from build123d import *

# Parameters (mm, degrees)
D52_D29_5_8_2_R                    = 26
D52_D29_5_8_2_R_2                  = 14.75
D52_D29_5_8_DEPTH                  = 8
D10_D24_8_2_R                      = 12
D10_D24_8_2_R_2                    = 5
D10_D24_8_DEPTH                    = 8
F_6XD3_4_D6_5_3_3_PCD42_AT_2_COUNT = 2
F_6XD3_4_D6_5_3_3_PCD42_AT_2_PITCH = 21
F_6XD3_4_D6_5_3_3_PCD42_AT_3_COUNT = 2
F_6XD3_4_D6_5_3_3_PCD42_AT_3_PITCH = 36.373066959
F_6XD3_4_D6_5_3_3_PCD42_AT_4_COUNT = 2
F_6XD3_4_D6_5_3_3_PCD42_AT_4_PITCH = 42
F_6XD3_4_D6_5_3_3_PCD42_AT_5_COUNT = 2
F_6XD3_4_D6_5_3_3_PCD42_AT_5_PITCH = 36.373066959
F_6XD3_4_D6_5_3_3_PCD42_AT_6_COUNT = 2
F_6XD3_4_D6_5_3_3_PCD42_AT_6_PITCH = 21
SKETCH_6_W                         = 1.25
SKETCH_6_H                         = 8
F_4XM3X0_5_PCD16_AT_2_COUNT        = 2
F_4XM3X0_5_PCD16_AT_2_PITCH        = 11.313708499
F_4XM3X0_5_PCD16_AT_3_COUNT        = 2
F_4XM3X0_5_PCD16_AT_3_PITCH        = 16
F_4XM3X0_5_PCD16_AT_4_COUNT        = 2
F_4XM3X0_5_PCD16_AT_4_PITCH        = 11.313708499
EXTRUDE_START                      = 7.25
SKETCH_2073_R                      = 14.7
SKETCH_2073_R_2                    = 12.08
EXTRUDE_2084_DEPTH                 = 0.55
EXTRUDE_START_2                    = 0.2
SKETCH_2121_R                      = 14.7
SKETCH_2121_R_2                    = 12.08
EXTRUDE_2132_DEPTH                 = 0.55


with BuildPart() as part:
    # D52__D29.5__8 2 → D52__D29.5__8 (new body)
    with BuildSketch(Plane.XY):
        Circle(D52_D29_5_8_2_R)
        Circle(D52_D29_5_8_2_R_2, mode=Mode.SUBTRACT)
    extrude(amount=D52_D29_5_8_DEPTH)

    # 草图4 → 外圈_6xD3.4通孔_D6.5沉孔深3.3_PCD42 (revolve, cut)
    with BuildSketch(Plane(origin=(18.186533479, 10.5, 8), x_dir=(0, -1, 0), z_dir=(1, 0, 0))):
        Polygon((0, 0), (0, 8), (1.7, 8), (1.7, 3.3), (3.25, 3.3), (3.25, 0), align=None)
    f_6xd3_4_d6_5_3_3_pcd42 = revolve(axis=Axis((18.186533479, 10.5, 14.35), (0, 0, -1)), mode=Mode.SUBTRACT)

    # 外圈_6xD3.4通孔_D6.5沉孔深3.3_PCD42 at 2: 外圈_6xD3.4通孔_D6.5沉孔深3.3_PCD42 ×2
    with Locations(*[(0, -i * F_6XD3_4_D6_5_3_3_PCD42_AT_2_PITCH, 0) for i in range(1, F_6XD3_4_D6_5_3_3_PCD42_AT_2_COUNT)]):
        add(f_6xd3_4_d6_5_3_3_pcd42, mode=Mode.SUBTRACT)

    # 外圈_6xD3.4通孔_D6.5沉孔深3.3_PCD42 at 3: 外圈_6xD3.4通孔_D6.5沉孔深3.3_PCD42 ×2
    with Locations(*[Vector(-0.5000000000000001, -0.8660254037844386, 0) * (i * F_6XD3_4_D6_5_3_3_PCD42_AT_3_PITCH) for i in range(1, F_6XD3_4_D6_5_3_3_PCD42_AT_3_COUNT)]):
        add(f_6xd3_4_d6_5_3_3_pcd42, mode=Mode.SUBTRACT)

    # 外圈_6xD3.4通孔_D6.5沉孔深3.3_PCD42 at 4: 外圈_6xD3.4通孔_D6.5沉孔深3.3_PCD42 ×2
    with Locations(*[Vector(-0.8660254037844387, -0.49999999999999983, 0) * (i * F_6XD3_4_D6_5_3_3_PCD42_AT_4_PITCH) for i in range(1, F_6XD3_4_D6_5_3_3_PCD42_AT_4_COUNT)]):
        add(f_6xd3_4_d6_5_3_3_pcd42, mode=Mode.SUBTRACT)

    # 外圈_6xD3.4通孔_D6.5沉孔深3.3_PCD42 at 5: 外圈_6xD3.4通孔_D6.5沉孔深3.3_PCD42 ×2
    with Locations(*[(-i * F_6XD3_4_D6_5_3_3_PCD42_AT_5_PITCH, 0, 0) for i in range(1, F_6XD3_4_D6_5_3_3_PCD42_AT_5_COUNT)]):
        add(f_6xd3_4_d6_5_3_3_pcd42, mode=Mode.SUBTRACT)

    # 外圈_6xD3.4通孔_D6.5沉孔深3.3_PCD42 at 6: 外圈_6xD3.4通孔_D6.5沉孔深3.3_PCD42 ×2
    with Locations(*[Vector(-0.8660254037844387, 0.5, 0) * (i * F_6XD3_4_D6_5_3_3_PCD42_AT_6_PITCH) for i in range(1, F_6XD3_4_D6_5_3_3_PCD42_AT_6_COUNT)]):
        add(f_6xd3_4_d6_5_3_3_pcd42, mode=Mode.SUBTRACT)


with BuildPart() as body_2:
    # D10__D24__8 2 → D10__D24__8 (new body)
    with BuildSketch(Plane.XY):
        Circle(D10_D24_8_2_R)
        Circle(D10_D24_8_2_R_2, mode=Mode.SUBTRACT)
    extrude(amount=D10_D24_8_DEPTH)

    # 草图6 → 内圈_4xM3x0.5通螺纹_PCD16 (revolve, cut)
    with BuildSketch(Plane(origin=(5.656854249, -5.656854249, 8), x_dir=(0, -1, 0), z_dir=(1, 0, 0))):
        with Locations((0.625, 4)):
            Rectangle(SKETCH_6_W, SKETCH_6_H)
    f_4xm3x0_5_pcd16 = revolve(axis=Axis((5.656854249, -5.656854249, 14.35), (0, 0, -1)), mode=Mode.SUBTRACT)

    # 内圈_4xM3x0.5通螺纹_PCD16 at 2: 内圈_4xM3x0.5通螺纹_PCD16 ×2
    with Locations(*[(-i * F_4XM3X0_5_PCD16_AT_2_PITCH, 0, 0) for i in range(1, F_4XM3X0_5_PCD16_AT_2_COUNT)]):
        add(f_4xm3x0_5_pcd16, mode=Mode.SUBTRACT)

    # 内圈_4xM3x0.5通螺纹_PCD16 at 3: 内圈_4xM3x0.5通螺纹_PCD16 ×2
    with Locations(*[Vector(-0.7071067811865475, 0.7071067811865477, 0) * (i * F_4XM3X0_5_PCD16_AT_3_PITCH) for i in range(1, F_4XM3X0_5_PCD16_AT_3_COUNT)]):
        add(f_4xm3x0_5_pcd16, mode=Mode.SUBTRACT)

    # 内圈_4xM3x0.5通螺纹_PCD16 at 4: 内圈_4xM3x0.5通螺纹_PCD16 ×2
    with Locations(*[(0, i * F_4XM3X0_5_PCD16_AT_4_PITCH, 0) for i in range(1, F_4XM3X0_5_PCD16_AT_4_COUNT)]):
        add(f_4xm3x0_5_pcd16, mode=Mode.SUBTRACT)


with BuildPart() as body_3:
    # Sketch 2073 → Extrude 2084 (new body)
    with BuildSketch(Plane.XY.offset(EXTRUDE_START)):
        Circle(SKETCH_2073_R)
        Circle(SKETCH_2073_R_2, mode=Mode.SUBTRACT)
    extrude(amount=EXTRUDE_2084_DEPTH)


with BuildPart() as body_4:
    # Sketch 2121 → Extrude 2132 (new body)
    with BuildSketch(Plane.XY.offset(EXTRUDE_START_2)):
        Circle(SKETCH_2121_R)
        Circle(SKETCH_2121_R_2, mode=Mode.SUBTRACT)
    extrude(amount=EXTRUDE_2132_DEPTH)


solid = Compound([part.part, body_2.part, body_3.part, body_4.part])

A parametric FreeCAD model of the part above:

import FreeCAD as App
import Part
import Sketcher
from FreeCAD import Vector

doc = App.newDocument("Part")
body = doc.addObject("PartDesign::Body", "Body")

# Sketch on XY plane
sketch1 = body.newObject("Sketcher::SketchObject", "Sketch")
sketch1.AttachmentSupport = (doc.getObject("XY_Plane"), [""])
sketch1.MapMode = "FlatFace"
sketch1.addGeometry([
    Part.Circle(Vector(0, 0, 0), Vector(0, 0, 1), 26),
    Part.Circle(Vector(0, 0, 0), Vector(0, 0, 1), 15),
], False)
sketch1.addConstraint([
    Sketcher.Constraint("Coincident", 0, 3, -1, 1),
    Sketcher.Constraint("Coincident", 1, 3, -1, 1),
    Sketcher.Constraint("Diameter", 0, 52.0),
    Sketcher.Constraint("Diameter", 1, 29.5),
])
pad1 = body.newObject("PartDesign::Pad", "Pad")
pad1.Profile = sketch1
pad1.Length = 8

# Sketch on YZ plane
sketch2 = body.newObject("Sketcher::SketchObject", "Sketch001")
sketch2.AttachmentSupport = (doc.getObject("YZ_Plane"), [""])
sketch2.MapMode = "FlatFace"
sketch2.AttachmentOffset = App.Placement(Vector(0, 0, 18.186533), App.Rotation())
sketch2.addGeometry([
    Part.LineSegment(Vector(10.5, 0, 0), Vector(10.5, 8, 0)),  # 0
    Part.LineSegment(Vector(10.5, 8, 0), Vector(7.2, 8, 0)),  # 1
    Part.LineSegment(Vector(7.2, 8, 0), Vector(7.2, 4.7, 0)),  # 2
    Part.LineSegment(Vector(7.2, 4.7, 0), Vector(8.8, 4.7, 0)),  # 3
    Part.LineSegment(Vector(8.8, 4.7, 0), Vector(8.8, 0, 0)),  # 4
    Part.LineSegment(Vector(8.8, 0, 0), Vector(10.5, 0, 0)),  # 5
], False)
sketch2.addGeometry(Part.LineSegment(Vector(10.5, 8, 0), Vector(10.5, 0, 0)), True)  # axis
sketch2.addConstraint([
    Sketcher.Constraint("Coincident", 0, 2, 1, 1),
    Sketcher.Constraint("Coincident", 1, 2, 2, 1),
    Sketcher.Constraint("Coincident", 2, 2, 3, 1),
    Sketcher.Constraint("Coincident", 3, 2, 4, 1),
    Sketcher.Constraint("Coincident", 4, 2, 5, 1),
    Sketcher.Constraint("Coincident", 5, 2, 0, 1),
    Sketcher.Constraint("Vertical", 0),
    Sketcher.Constraint("Horizontal", 1),
    Sketcher.Constraint("Vertical", 2),
    Sketcher.Constraint("Horizontal", 3),
    Sketcher.Constraint("Vertical", 4),
    Sketcher.Constraint("Horizontal", 5),
    Sketcher.Constraint("Vertical", 6),
    Sketcher.Constraint("Coincident", 6, 1, 0, 2),
    Sketcher.Constraint("PointOnObject", 4, 2, -1),
    Sketcher.Constraint("PointOnObject", 6, 2, -1),
    Sketcher.Constraint("DistanceY", 0, 1, 0, 2, 8.0),
    Sketcher.Constraint("DistanceX", 5, 1, 5, 2, 1.7),
    Sketcher.Constraint("DistanceY", 2, 2, 2, 1, 3.3),
    Sketcher.Constraint("DistanceX", 1, 2, 1, 1, 3.25),
    Sketcher.Constraint("DistanceX", -1, 1, 0, 2, 10.5),
])
groove = body.newObject("PartDesign::Groove", "Groove")
groove.Profile = sketch2
groove.ReferenceAxis = (sketch2, ["Axis0"])
groove.Angle = 360
doc.recompute()

linearpattern = body.newObject("PartDesign::LinearPattern", "LinearPattern")
linearpattern.Originals = [groove]
linearpattern.Direction = (doc.getObject("Y_Axis"), [""])
linearpattern.Mode = "offset"
linearpattern.Offset = 21
linearpattern.Occurrences = 2
linearpattern.Reversed = True
body.Tip = linearpattern
doc.recompute()

datumline = body.newObject("PartDesign::Line", "DatumLine")
datumline.Placement = App.Placement(Vector(0, 0, 0), App.Rotation(Vector(0, 0, 1), Vector(-0.5, -0.866025404, 0)))
linearpattern2 = body.newObject("PartDesign::LinearPattern", "LinearPattern001")
linearpattern2.Originals = [groove]
linearpattern2.Direction = (datumline, [""])
linearpattern2.Mode = "offset"
linearpattern2.Offset = 36.373067
linearpattern2.Occurrences = 2
body.Tip = linearpattern2
doc.recompute()

datumline2 = body.newObject("PartDesign::Line", "DatumLine001")
datumline2.Placement = App.Placement(Vector(0, 0, 0), App.Rotation(Vector(0, 0, 1), Vector(-0.866025404, -0.5, 0)))
linearpattern3 = body.newObject("PartDesign::LinearPattern", "LinearPattern002")
linearpattern3.Originals = [groove]
linearpattern3.Direction = (datumline2, [""])
linearpattern3.Mode = "offset"
linearpattern3.Offset = 42
linearpattern3.Occurrences = 2
body.Tip = linearpattern3
doc.recompute()

linearpattern4 = body.newObject("PartDesign::LinearPattern", "LinearPattern003")
linearpattern4.Originals = [groove]
linearpattern4.Direction = (doc.getObject("X_Axis"), [""])
linearpattern4.Mode = "offset"
linearpattern4.Offset = 36.373067
linearpattern4.Occurrences = 2
linearpattern4.Reversed = True
body.Tip = linearpattern4
doc.recompute()

datumline3 = body.newObject("PartDesign::Line", "DatumLine002")
datumline3.Placement = App.Placement(Vector(0, 0, 0), App.Rotation(Vector(0, 0, 1), Vector(-0.866025404, 0.5, 0)))
linearpattern5 = body.newObject("PartDesign::LinearPattern", "LinearPattern004")
linearpattern5.Originals = [groove]
linearpattern5.Direction = (datumline3, [""])
linearpattern5.Mode = "offset"
linearpattern5.Offset = 21
linearpattern5.Occurrences = 2
body.Tip = linearpattern5
body2 = doc.addObject("PartDesign::Body", "Body001")

# Sketch on XY plane
sketch3 = body2.newObject("Sketcher::SketchObject", "Sketch002")
sketch3.AttachmentSupport = (doc.getObject("XY_Plane001"), [""])
sketch3.MapMode = "FlatFace"
sketch3.addGeometry([
    Part.Circle(Vector(0, 0, 0), Vector(0, 0, 1), 12),
    Part.Circle(Vector(0, 0, 0), Vector(0, 0, 1), 5),
], False)
sketch3.addConstraint([
    Sketcher.Constraint("Coincident", 0, 3, -1, 1),
    Sketcher.Constraint("Coincident", 1, 3, -1, 1),
    Sketcher.Constraint("Diameter", 0, 24.0),
    Sketcher.Constraint("Diameter", 1, 10.0),
])
pad2 = body2.newObject("PartDesign::Pad", "Pad001")
pad2.Profile = sketch3
pad2.Length = 8

# Sketch on YZ plane
sketch4 = body2.newObject("Sketcher::SketchObject", "Sketch003")
sketch4.AttachmentSupport = (doc.getObject("YZ_Plane001"), [""])
sketch4.MapMode = "FlatFace"
sketch4.AttachmentOffset = App.Placement(Vector(0, 0, 5.656854), App.Rotation())
sketch4.addGeometry([
    Part.LineSegment(Vector(-5.7, 0, 0), Vector(-5.7, 8, 0)),
    Part.LineSegment(Vector(-5.7, 8, 0), Vector(-6.9, 8, 0)),
    Part.LineSegment(Vector(-6.9, 8, 0), Vector(-6.9, 0, 0)),
    Part.LineSegment(Vector(-6.9, 0, 0), Vector(-5.7, 0, 0)),
], False)
sketch4.addGeometry(Part.LineSegment(Vector(-5.7, 8, 0), Vector(-5.7, 0, 0)), True)  # axis
sketch4.addConstraint([
    Sketcher.Constraint("Coincident", 0, 2, 1, 1),
    Sketcher.Constraint("Coincident", 1, 2, 2, 1),
    Sketcher.Constraint("Coincident", 2, 2, 3, 1),
    Sketcher.Constraint("Coincident", 3, 2, 0, 1),
    Sketcher.Constraint("Vertical", 0),
    Sketcher.Constraint("Horizontal", 1),
    Sketcher.Constraint("Vertical", 2),
    Sketcher.Constraint("Horizontal", 3),
    Sketcher.Constraint("Vertical", 4),
    Sketcher.Constraint("Coincident", 4, 1, 0, 2),
    Sketcher.Constraint("PointOnObject", 2, 2, -1),
    Sketcher.Constraint("PointOnObject", 4, 2, -1),
    Sketcher.Constraint("DistanceY", 0, 1, 0, 2, 8.0),
    Sketcher.Constraint("DistanceX", 1, 2, 1, 1, 1.25),
    Sketcher.Constraint("DistanceX", 0, 2, -1, 1, 5.656854),
])
groove2 = body2.newObject("PartDesign::Groove", "Groove001")
groove2.Profile = sketch4
groove2.ReferenceAxis = (sketch4, ["Axis0"])
groove2.Angle = 360
doc.recompute()

linearpattern6 = body2.newObject("PartDesign::LinearPattern", "LinearPattern005")
linearpattern6.Originals = [groove2]
linearpattern6.Direction = (doc.getObject("X_Axis001"), [""])
linearpattern6.Mode = "offset"
linearpattern6.Offset = 11.313708
linearpattern6.Occurrences = 2
linearpattern6.Reversed = True
body2.Tip = linearpattern6
doc.recompute()

datumline4 = body2.newObject("PartDesign::Line", "DatumLine003")
datumline4.Placement = App.Placement(Vector(0, 0, 0), App.Rotation(Vector(0, 0, 1), Vector(-0.707106781, 0.707106781, 0)))
linearpattern7 = body2.newObject("PartDesign::LinearPattern", "LinearPattern006")
linearpattern7.Originals = [groove2]
linearpattern7.Direction = (datumline4, [""])
linearpattern7.Mode = "offset"
linearpattern7.Offset = 16
linearpattern7.Occurrences = 2
body2.Tip = linearpattern7
doc.recompute()

linearpattern8 = body2.newObject("PartDesign::LinearPattern", "LinearPattern007")
linearpattern8.Originals = [groove2]
linearpattern8.Direction = (doc.getObject("Y_Axis001"), [""])
linearpattern8.Mode = "offset"
linearpattern8.Offset = 11.313708
linearpattern8.Occurrences = 2
body2.Tip = linearpattern8
body3 = doc.addObject("PartDesign::Body", "Body002")

# Sketch on XY plane
sketch5 = body3.newObject("Sketcher::SketchObject", "Sketch004")
sketch5.AttachmentSupport = (doc.getObject("XY_Plane002"), [""])
sketch5.MapMode = "FlatFace"
sketch5.AttachmentOffset = App.Placement(Vector(0, 0, 7.25), App.Rotation())
sketch5.addGeometry([
    Part.Circle(Vector(0, 0, 0), Vector(0, 0, 1), 15),
    Part.Circle(Vector(0, 0, 0), Vector(0, 0, 1), 12),
], False)
sketch5.addConstraint([
    Sketcher.Constraint("Coincident", 0, 3, -1, 1),
    Sketcher.Constraint("Coincident", 1, 3, -1, 1),
    Sketcher.Constraint("Diameter", 0, 29.4),
    Sketcher.Constraint("Diameter", 1, 24.16),
])
pad3 = body3.newObject("PartDesign::Pad", "Pad002")
pad3.Profile = sketch5
pad3.Length = 0.55
body4 = doc.addObject("PartDesign::Body", "Body003")

# Sketch on XY plane
sketch6 = body4.newObject("Sketcher::SketchObject", "Sketch005")
sketch6.AttachmentSupport = (doc.getObject("XY_Plane003"), [""])
sketch6.MapMode = "FlatFace"
sketch6.AttachmentOffset = App.Placement(Vector(0, 0, 0.2), App.Rotation())
sketch6.addGeometry([
    Part.Circle(Vector(0, 0, 0), Vector(0, 0, 1), 15),
    Part.Circle(Vector(0, 0, 0), Vector(0, 0, 1), 12),
], False)
sketch6.addConstraint([
    Sketcher.Constraint("Coincident", 0, 3, -1, 1),
    Sketcher.Constraint("Coincident", 1, 3, -1, 1),
    Sketcher.Constraint("Diameter", 0, 29.4),
    Sketcher.Constraint("Diameter", 1, 24.16),
])
pad4 = body4.newObject("PartDesign::Pad", "Pad003")
pad4.Profile = sketch6
pad4.Length = 0.55

doc.recompute()
